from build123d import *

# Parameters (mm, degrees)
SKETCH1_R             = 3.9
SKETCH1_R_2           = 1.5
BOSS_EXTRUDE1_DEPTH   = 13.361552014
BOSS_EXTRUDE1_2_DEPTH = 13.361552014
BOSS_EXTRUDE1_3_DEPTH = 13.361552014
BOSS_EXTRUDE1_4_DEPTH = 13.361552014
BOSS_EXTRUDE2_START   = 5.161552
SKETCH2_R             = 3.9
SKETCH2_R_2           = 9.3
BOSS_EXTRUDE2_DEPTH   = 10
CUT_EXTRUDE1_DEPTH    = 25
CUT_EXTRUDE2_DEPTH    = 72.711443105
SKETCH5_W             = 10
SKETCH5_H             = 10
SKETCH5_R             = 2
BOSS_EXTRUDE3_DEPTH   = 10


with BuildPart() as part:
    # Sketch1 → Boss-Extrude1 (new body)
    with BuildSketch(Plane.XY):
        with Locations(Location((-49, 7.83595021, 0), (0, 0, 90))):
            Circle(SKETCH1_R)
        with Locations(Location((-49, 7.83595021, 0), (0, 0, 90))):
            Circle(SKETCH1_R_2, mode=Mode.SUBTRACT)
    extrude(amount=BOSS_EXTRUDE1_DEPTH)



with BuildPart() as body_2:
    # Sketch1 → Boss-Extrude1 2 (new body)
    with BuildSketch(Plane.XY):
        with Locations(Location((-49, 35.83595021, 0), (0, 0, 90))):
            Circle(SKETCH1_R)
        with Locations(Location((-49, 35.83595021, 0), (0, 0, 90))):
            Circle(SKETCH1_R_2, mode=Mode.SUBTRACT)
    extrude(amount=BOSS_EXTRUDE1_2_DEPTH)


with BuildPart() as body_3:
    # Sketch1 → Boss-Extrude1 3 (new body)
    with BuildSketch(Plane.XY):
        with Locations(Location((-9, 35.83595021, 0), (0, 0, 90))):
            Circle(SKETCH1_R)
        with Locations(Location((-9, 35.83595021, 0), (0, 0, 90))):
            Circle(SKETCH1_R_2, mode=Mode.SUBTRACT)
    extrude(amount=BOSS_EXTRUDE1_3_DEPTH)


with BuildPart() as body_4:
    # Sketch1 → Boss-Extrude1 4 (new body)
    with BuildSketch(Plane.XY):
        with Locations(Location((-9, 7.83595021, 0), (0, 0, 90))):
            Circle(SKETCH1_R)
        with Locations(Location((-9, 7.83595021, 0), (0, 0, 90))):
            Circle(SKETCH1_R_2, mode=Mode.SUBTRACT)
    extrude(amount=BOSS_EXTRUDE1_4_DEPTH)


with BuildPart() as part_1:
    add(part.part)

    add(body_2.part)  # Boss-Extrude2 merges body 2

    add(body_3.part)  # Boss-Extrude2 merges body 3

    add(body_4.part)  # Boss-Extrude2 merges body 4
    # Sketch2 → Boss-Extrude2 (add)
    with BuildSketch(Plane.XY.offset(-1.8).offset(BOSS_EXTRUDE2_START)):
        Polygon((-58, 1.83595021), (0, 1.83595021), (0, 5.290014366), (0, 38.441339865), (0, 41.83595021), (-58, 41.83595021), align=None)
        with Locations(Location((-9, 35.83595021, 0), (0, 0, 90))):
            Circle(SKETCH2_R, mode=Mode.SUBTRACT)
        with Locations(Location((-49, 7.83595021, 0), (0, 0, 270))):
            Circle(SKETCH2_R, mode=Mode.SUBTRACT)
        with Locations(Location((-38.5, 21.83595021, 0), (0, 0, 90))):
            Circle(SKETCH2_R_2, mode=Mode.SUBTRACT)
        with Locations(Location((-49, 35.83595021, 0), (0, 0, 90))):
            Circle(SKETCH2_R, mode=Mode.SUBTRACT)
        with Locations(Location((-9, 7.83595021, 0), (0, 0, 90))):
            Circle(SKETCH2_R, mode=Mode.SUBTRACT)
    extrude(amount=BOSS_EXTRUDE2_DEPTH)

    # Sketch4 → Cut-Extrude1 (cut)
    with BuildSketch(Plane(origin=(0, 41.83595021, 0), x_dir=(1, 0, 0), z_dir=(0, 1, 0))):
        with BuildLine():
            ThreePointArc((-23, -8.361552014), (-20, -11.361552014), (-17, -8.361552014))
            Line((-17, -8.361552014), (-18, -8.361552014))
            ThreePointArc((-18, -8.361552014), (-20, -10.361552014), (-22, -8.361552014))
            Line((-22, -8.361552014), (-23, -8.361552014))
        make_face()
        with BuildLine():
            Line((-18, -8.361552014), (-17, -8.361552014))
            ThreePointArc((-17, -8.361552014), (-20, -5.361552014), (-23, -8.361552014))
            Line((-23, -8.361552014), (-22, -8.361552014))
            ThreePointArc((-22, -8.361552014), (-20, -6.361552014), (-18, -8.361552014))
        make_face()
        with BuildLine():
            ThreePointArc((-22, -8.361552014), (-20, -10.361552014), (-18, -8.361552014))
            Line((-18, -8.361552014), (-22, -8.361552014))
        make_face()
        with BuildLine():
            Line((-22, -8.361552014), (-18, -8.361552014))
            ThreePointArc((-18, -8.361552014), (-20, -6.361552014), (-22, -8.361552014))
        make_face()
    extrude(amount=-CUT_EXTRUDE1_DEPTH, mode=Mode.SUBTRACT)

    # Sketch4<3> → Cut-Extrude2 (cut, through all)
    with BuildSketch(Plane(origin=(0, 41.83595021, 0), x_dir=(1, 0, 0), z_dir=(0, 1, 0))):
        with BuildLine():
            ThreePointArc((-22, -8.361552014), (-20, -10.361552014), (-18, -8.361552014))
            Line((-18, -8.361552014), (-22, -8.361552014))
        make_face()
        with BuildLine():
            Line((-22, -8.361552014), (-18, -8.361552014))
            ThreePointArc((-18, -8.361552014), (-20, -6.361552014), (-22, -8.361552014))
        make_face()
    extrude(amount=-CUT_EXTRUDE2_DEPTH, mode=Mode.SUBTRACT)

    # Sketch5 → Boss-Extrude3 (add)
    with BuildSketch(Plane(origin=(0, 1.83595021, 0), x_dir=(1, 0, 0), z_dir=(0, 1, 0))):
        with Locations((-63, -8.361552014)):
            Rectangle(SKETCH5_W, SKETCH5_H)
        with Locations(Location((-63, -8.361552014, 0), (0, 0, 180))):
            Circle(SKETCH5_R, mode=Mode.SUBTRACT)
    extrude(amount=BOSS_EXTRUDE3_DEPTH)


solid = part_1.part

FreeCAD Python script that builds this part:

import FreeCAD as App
import Part
import Sketcher
from FreeCAD import Vector


def add_polygon(sketch, points):
    """Adds a closed chain of lines whose ends are joined by coincident constraints."""
    first, n = sketch.GeometryCount, len(points)
    for a, b in zip(points, points[1:] + points[:1]):
        sketch.addGeometry(Part.LineSegment(App.Vector(*a, 0), App.Vector(*b, 0)), False)
    for i in range(n):
        sketch.addConstraint(Sketcher.Constraint("Coincident", first + i, 2, first + (i + 1) % n, 1))

doc = App.newDocument("Part")
body = doc.addObject("PartDesign::Body", "Body")

# Sketch on XY plane
sketch1 = doc.addObject("Sketcher::SketchObject", "Sketch")
body.addObject(sketch1)
sketch1.AttachmentSupport = (doc.XY_Plane, [""])
sketch1.MapMode = "FlatFace"
sketch1.addGeometry([
    Part.Circle(Vector(-49, 7.8, 0), Vector(0, 0, 1), 3.9),
    Part.Circle(Vector(-49, 7.8, 0), Vector(0, 0, 1), 1.5),
], False)
sketch1.addConstraint([
    Sketcher.Constraint("Coincident", 1, 3, 0, 3),
    Sketcher.Constraint("Diameter", 1, 3.0),
    Sketcher.Constraint("Diameter", 0, 7.8),
    Sketcher.Constraint("DistanceX", 0, 3, -1, 1, 49.0),
    Sketcher.Constraint("DistanceY", -1, 1, 0, 3, 7.83595),
])
pad1 = doc.addObject("PartDesign::Pad", "Pad")
body.addObject(pad1)
pad1.Profile = sketch1
pad1.Length = 13.361552
body2 = doc.addObject("PartDesign::Body", "Body001")

# Sketch on XY plane
sketch2 = doc.addObject("Sketcher::SketchObject", "Sketch001")
body2.addObject(sketch2)
sketch2.AttachmentSupport = (doc.getObject("XY_Plane001"), [""])
sketch2.MapMode = "FlatFace"
sketch2.addGeometry([
    Part.Circle(Vector(-49, 35.8, 0), Vector(0, 0, 1), 3.9),
    Part.Circle(Vector(-49, 35.8, 0), Vector(0, 0, 1), 1.5),
], False)
sketch2.addConstraint([
    Sketcher.Constraint("Coincident", 1, 3, 0, 3),
    Sketcher.Constraint("Diameter", 1, 3.0),
    Sketcher.Constraint("Diameter", 0, 7.8),
    Sketcher.Constraint("DistanceX", 0, 3, -1, 1, 49.0),
    Sketcher.Constraint("DistanceY", -1, 1, 0, 3, 35.83595),
])
pad2 = doc.addObject("PartDesign::Pad", "Pad001")
body2.addObject(pad2)
pad2.Profile = sketch2
pad2.Length = 13.361552
body3 = doc.addObject("PartDesign::Body", "Body002")

# Sketch on XY plane
sketch3 = doc.addObject("Sketcher::SketchObject", "Sketch002")
body3.addObject(sketch3)
sketch3.AttachmentSupport = (doc.getObject("XY_Plane002"), [""])
sketch3.MapMode = "FlatFace"
sketch3.addGeometry([
    Part.Circle(Vector(-9, 35.8, 0), Vector(0, 0, 1), 3.9),
    Part.Circle(Vector(-9, 35.8, 0), Vector(0, 0, 1), 1.5),
], False)
sketch3.addConstraint([
    Sketcher.Constraint("Coincident", 1, 3, 0, 3),
    Sketcher.Constraint("Diameter", 1, 3.0),
    Sketcher.Constraint("Diameter", 0, 7.8),
    Sketcher.Constraint("DistanceX", 0, 3, -1, 1, 9.0),
    Sketcher.Constraint("DistanceY", -1, 1, 0, 3, 35.83595),
])
pad3 = doc.addObject("PartDesign::Pad", "Pad002")
body3.addObject(pad3)
pad3.Profile = sketch3
pad3.Length = 13.361552
body4 = doc.addObject("PartDesign::Body", "Body003")

# Sketch on XY plane
sketch4 = doc.addObject("Sketcher::SketchObject", "Sketch003")
body4.addObject(sketch4)
sketch4.AttachmentSupport = (doc.getObject("XY_Plane003"), [""])
sketch4.MapMode = "FlatFace"
sketch4.addGeometry([
    Part.Circle(Vector(-9, 7.8, 0), Vector(0, 0, 1), 3.9),
    Part.Circle(Vector(-9, 7.8, 0), Vector(0, 0, 1), 1.5),
], False)
sketch4.addConstraint([
    Sketcher.Constraint("Coincident", 1, 3, 0, 3),
    Sketcher.Constraint("Diameter", 1, 3.0),
    Sketcher.Constraint("Diameter", 0, 7.8),
    Sketcher.Constraint("DistanceX", 0, 3, -1, 1, 9.0),
    Sketcher.Constraint("DistanceY", -1, 1, 0, 3, 7.83595),
])
pad4 = doc.addObject("PartDesign::Pad", "Pad003")
body4.addObject(pad4)
pad4.Profile = sketch4
pad4.Length = 13.361552
body.AllowCompound = True
doc.recompute()

boolean = doc.addObject("PartDesign::Boolean", "Boolean")
body.addObject(boolean)
boolean.Type = "Fuse"
boolean.addObjects([body2])
doc.recompute()

boolean2 = doc.addObject("PartDesign::Boolean", "Boolean001")
body.addObject(boolean2)
boolean2.Type = "Fuse"
boolean2.addObjects([body3])
doc.recompute()

boolean3 = doc.addObject("PartDesign::Boolean", "Boolean002")
body.addObject(boolean3)
boolean3.Type = "Fuse"
boolean3.addObjects([body4])

# Sketch on XY plane
sketch5 = doc.addObject("Sketcher::SketchObject", "Sketch004")
body.addObject(sketch5)
sketch5.AttachmentSupport = (doc.XY_Plane, [""])
sketch5.MapMode = "FlatFace"
sketch5.AttachmentOffset = App.Placement(Vector(0, 0, 3.361552), App.Rotation())
add_polygon(sketch5, [(-58, 1.8), (0, 1.8), (0, 41.8), (-58, 41.8)])  # lines 0-3
sketch5.addGeometry(Part.Circle(Vector(-49, 7.8, 0), Vector(0, 0, 1), 3.9), False)  # 4
sketch5.addGeometry(Part.Circle(Vector(-9, 7.8, 0), Vector(0, 0, 1), 3.9), False)  # 5
sketch5.addGeometry(Part.Circle(Vector(-38.5, 21.8, 0), Vector(0, 0, 1), 9.3), False)  # 6
sketch5.addGeometry(Part.Circle(Vector(-49, 35.8, 0), Vector(0, 0, 1), 3.9), False)  # 7
sketch5.addGeometry(Part.Circle(Vector(-9, 35.8, 0), Vector(0, 0, 1), 3.9), False)  # 8
sketch5.addConstraint([
    Sketcher.Constraint("Horizontal", 0),
    Sketcher.Constraint("Vertical", 1),
    Sketcher.Constraint("Horizontal", 2),
    Sketcher.Constraint("Vertical", 3),
    Sketcher.Constraint("Equal", 4, 5),
    Sketcher.Constraint("Equal", 5, 7),
    Sketcher.Constraint("Equal", 7, 8),
    Sketcher.Constraint("PointOnObject", 0, 2, -2),
    Sketcher.Constraint("Horizontal", 4, 3, 5, 3),
    Sketcher.Constraint("Horizontal", 7, 3, 8, 3),
    Sketcher.Constraint("Vertical", 4, 3, 7, 3),
    Sketcher.Constraint("Vertical", 5, 3, 8, 3),
    Sketcher.Constraint("Diameter", 4, 7.8),
    Sketcher.Constraint("Diameter", 6, 18.6),
    Sketcher.Constraint("DistanceX", 0, 1, 0, 2, 58.0),
    Sketcher.Constraint("DistanceY", 1, 1, 1, 2, 40.0),
    Sketcher.Constraint("DistanceX", 4, 3, -1, 1, 49.0),
    Sketcher.Constraint("DistanceX", 5, 3, -1, 1, 9.0),
    Sketcher.Constraint("DistanceY", 4, 3, 6, 3, 14.0),
    Sketcher.Constraint("DistanceY", 6, 3, 7, 3, 14.0),
    Sketcher.Constraint("DistanceY", 0, 2, 5, 3, 6.0),
    Sketcher.Constraint("DistanceX", 6, 3, -1, 1, 38.5),
    Sketcher.Constraint("DistanceY", -1, 1, 4, 3, 7.83595),
])
pad5 = doc.addObject("PartDesign::Pad", "Pad004")
body.addObject(pad5)
pad5.Profile = sketch5
pad5.Length = 10

# Sketch on XZ plane
sketch6 = doc.addObject("Sketcher::SketchObject", "Sketch005")
body.addObject(sketch6)
sketch6.AttachmentSupport = (doc.XZ_Plane, [""])
sketch6.MapMode = "FlatFace"
sketch6.AttachmentOffset = App.Placement(Vector(0, 0, -41.83595), App.Rotation())
sketch6.addGeometry(Part.Circle(Vector(-20, 8.4, 0), Vector(0, 0, 1), 3), False)
sketch6.addConstraint([
    Sketcher.Constraint("Diameter", 0, 6.0),
    Sketcher.Constraint("DistanceX", 0, 3, -1, 1, 20.0),
    Sketcher.Constraint("DistanceY", -1, 1, 0, 3, 8.361552),
])
pocket1 = doc.addObject("PartDesign::Pocket", "Pocket")
body.addObject(pocket1)
pocket1.Profile = sketch6
pocket1.Length = 25
pocket1.Reversed = True

# Sketch on XZ plane
sketch7 = doc.addObject("Sketcher::SketchObject", "Sketch006")
body.addObject(sketch7)
sketch7.AttachmentSupport = (doc.XZ_Plane, [""])
sketch7.MapMode = "FlatFace"
sketch7.AttachmentOffset = App.Placement(Vector(0, 0, -41.83595), App.Rotation())
sketch7.addGeometry(Part.Circle(Vector(-20, 8.4, 0), Vector(0, 0, 1), 2), False)
sketch7.addConstraint([
    Sketcher.Constraint("Diameter", 0, 4.0),
    Sketcher.Constraint("DistanceX", 0, 3, -1, 1, 20.0),
    Sketcher.Constraint("DistanceY", -1, 1, 0, 3, 8.361552),
])
pocket2 = doc.addObject("PartDesign::Pocket", "Pocket001")
body.addObject(pocket2)
pocket2.Profile = sketch7
pocket2.Type = "ThroughAll"
pocket2.Reversed = True

# Sketch on XZ plane
sketch8 = doc.addObject("Sketcher::SketchObject", "Sketch007")
body.addObject(sketch8)
sketch8.AttachmentSupport = (doc.XZ_Plane, [""])
sketch8.MapMode = "FlatFace"
sketch8.AttachmentOffset = App.Placement(Vector(0, 0, -1.83595), App.Rotation())
add_polygon(sketch8, [(-68, 3.4), (-68, 13.4), (-58, 13.4), (-58, 3.4)])  # lines 0-3
sketch8.addGeometry(Part.Circle(Vector(-63, 8.4, 0), Vector(0, 0, 1), 2), False)  # 4
sketch8.addConstraint([
    Sketcher.Constraint("Vertical", 0),
    Sketcher.Constraint("Horizontal", 1),
    Sketcher.Constraint("Vertical", 2),
    Sketcher.Constraint("Horizontal", 3),
    Sketcher.Constraint("Equal", 3, 0),
    Sketcher.Constraint("Diameter", 4, 4.0),
    Sketcher.Constraint("DistanceX", 1, 1, 1, 2, 10.0),
    Sketcher.Constraint("DistanceX", 4, 3, -1, 1, 63.0),
    Sketcher.Constraint("DistanceX", 0, 2, -1, 1, 68.0),
    Sketcher.Constraint("DistanceY", 4, 3, 0, 2, 5.0),
    Sketcher.Constraint("DistanceY", -1, 1, 4, 3, 8.361552),
])
pad6 = doc.addObject("PartDesign::Pad", "Pad005")
body.addObject(pad6)
pad6.Profile = sketch8
pad6.Length = 10
pad6.Reversed = True

doc.recompute()
